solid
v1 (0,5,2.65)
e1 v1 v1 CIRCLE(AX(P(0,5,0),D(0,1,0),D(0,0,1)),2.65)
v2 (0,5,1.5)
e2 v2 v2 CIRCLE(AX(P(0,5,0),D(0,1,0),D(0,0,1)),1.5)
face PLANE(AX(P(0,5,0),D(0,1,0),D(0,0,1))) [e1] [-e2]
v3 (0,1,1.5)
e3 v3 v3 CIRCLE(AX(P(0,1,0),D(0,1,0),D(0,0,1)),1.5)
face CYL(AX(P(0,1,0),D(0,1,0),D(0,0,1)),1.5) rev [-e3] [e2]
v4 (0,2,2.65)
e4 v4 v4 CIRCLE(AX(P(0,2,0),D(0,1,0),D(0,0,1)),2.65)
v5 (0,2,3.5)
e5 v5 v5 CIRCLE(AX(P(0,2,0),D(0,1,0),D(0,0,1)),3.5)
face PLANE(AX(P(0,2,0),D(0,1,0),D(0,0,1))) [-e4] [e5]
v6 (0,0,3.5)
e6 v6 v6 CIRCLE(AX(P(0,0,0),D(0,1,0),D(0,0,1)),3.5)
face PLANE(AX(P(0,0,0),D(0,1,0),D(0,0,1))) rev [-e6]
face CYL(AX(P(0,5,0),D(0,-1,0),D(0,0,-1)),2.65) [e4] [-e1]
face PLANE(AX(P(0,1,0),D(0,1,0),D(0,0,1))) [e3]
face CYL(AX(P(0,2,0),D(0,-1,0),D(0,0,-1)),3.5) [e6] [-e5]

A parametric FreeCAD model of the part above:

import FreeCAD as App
import Part
import Sketcher
Q = App.Units.Quantity

doc = App.newDocument("Part")
body = doc.addObject("PartDesign::Body", "Body")

# Sketch on XZ plane
sketch1 = body.newObject("Sketcher::SketchObject", "Sketch")
sketch1.AttachmentSupport = (doc.getObject("XZ_Plane"), [""])
sketch1.MapMode = "FlatFace"
sketch1.addGeometry(Part.Circle(App.Vector(0, 0, 0), App.Vector(0, 0, 1), 3.5), False)
sketch1.addConstraint(Sketcher.Constraint("Coincident", 0, 3, -1, 1))
sketch1.addConstraint(Sketcher.Constraint("Diameter", 0, Q("7 mm")))
pad1 = body.newObject("PartDesign::Pad", "Pad")
pad1.Profile = sketch1
pad1.Length = 2
pad1.Reversed = True

# Sketch on XZ plane
sketch2 = body.newObject("Sketcher::SketchObject", "Sketch001")
sketch2.AttachmentSupport = (doc.getObject("XZ_Plane"), [""])
sketch2.MapMode = "FlatFace"
sketch2.AttachmentOffset = App.Placement(App.Vector(0, 0, -2), App.Rotation())
sketch2.addGeometry(Part.Circle(App.Vector(0, 0, 0), App.Vector(0, 0, 1), 2.6), False)
sketch2.addConstraint(Sketcher.Constraint("Coincident", 0, 3, -1, 1))
sketch2.addConstraint(Sketcher.Constraint("Diameter", 0, Q("5.3 mm")))
pad2 = body.newObject("PartDesign::Pad", "Pad001")
pad2.Profile = sketch2
pad2.Length = 3
pad2.Reversed = True

# Sketch on XZ plane
sketch3 = body.newObject("Sketcher::SketchObject", "Sketch002")
sketch3.AttachmentSupport = (doc.getObject("XZ_Plane"), [""])
sketch3.MapMode = "FlatFace"
sketch3.AttachmentOffset = App.Placement(App.Vector(0, 0, -5), App.Rotation())
sketch3.addGeometry(Part.Circle(App.Vector(0, 0, 0), App.Vector(0, 0, 1), 1.5), False)
sketch3.addConstraint(Sketcher.Constraint("Coincident", 0, 3, -1, 1))
sketch3.addConstraint(Sketcher.Constraint("Diameter", 0, Q("3 mm")))
pocket1 = body.newObject("PartDesign::Pocket", "Pocket")
pocket1.Profile = sketch3
pocket1.Length = 4
pocket1.Reversed = True

doc.recompute()
